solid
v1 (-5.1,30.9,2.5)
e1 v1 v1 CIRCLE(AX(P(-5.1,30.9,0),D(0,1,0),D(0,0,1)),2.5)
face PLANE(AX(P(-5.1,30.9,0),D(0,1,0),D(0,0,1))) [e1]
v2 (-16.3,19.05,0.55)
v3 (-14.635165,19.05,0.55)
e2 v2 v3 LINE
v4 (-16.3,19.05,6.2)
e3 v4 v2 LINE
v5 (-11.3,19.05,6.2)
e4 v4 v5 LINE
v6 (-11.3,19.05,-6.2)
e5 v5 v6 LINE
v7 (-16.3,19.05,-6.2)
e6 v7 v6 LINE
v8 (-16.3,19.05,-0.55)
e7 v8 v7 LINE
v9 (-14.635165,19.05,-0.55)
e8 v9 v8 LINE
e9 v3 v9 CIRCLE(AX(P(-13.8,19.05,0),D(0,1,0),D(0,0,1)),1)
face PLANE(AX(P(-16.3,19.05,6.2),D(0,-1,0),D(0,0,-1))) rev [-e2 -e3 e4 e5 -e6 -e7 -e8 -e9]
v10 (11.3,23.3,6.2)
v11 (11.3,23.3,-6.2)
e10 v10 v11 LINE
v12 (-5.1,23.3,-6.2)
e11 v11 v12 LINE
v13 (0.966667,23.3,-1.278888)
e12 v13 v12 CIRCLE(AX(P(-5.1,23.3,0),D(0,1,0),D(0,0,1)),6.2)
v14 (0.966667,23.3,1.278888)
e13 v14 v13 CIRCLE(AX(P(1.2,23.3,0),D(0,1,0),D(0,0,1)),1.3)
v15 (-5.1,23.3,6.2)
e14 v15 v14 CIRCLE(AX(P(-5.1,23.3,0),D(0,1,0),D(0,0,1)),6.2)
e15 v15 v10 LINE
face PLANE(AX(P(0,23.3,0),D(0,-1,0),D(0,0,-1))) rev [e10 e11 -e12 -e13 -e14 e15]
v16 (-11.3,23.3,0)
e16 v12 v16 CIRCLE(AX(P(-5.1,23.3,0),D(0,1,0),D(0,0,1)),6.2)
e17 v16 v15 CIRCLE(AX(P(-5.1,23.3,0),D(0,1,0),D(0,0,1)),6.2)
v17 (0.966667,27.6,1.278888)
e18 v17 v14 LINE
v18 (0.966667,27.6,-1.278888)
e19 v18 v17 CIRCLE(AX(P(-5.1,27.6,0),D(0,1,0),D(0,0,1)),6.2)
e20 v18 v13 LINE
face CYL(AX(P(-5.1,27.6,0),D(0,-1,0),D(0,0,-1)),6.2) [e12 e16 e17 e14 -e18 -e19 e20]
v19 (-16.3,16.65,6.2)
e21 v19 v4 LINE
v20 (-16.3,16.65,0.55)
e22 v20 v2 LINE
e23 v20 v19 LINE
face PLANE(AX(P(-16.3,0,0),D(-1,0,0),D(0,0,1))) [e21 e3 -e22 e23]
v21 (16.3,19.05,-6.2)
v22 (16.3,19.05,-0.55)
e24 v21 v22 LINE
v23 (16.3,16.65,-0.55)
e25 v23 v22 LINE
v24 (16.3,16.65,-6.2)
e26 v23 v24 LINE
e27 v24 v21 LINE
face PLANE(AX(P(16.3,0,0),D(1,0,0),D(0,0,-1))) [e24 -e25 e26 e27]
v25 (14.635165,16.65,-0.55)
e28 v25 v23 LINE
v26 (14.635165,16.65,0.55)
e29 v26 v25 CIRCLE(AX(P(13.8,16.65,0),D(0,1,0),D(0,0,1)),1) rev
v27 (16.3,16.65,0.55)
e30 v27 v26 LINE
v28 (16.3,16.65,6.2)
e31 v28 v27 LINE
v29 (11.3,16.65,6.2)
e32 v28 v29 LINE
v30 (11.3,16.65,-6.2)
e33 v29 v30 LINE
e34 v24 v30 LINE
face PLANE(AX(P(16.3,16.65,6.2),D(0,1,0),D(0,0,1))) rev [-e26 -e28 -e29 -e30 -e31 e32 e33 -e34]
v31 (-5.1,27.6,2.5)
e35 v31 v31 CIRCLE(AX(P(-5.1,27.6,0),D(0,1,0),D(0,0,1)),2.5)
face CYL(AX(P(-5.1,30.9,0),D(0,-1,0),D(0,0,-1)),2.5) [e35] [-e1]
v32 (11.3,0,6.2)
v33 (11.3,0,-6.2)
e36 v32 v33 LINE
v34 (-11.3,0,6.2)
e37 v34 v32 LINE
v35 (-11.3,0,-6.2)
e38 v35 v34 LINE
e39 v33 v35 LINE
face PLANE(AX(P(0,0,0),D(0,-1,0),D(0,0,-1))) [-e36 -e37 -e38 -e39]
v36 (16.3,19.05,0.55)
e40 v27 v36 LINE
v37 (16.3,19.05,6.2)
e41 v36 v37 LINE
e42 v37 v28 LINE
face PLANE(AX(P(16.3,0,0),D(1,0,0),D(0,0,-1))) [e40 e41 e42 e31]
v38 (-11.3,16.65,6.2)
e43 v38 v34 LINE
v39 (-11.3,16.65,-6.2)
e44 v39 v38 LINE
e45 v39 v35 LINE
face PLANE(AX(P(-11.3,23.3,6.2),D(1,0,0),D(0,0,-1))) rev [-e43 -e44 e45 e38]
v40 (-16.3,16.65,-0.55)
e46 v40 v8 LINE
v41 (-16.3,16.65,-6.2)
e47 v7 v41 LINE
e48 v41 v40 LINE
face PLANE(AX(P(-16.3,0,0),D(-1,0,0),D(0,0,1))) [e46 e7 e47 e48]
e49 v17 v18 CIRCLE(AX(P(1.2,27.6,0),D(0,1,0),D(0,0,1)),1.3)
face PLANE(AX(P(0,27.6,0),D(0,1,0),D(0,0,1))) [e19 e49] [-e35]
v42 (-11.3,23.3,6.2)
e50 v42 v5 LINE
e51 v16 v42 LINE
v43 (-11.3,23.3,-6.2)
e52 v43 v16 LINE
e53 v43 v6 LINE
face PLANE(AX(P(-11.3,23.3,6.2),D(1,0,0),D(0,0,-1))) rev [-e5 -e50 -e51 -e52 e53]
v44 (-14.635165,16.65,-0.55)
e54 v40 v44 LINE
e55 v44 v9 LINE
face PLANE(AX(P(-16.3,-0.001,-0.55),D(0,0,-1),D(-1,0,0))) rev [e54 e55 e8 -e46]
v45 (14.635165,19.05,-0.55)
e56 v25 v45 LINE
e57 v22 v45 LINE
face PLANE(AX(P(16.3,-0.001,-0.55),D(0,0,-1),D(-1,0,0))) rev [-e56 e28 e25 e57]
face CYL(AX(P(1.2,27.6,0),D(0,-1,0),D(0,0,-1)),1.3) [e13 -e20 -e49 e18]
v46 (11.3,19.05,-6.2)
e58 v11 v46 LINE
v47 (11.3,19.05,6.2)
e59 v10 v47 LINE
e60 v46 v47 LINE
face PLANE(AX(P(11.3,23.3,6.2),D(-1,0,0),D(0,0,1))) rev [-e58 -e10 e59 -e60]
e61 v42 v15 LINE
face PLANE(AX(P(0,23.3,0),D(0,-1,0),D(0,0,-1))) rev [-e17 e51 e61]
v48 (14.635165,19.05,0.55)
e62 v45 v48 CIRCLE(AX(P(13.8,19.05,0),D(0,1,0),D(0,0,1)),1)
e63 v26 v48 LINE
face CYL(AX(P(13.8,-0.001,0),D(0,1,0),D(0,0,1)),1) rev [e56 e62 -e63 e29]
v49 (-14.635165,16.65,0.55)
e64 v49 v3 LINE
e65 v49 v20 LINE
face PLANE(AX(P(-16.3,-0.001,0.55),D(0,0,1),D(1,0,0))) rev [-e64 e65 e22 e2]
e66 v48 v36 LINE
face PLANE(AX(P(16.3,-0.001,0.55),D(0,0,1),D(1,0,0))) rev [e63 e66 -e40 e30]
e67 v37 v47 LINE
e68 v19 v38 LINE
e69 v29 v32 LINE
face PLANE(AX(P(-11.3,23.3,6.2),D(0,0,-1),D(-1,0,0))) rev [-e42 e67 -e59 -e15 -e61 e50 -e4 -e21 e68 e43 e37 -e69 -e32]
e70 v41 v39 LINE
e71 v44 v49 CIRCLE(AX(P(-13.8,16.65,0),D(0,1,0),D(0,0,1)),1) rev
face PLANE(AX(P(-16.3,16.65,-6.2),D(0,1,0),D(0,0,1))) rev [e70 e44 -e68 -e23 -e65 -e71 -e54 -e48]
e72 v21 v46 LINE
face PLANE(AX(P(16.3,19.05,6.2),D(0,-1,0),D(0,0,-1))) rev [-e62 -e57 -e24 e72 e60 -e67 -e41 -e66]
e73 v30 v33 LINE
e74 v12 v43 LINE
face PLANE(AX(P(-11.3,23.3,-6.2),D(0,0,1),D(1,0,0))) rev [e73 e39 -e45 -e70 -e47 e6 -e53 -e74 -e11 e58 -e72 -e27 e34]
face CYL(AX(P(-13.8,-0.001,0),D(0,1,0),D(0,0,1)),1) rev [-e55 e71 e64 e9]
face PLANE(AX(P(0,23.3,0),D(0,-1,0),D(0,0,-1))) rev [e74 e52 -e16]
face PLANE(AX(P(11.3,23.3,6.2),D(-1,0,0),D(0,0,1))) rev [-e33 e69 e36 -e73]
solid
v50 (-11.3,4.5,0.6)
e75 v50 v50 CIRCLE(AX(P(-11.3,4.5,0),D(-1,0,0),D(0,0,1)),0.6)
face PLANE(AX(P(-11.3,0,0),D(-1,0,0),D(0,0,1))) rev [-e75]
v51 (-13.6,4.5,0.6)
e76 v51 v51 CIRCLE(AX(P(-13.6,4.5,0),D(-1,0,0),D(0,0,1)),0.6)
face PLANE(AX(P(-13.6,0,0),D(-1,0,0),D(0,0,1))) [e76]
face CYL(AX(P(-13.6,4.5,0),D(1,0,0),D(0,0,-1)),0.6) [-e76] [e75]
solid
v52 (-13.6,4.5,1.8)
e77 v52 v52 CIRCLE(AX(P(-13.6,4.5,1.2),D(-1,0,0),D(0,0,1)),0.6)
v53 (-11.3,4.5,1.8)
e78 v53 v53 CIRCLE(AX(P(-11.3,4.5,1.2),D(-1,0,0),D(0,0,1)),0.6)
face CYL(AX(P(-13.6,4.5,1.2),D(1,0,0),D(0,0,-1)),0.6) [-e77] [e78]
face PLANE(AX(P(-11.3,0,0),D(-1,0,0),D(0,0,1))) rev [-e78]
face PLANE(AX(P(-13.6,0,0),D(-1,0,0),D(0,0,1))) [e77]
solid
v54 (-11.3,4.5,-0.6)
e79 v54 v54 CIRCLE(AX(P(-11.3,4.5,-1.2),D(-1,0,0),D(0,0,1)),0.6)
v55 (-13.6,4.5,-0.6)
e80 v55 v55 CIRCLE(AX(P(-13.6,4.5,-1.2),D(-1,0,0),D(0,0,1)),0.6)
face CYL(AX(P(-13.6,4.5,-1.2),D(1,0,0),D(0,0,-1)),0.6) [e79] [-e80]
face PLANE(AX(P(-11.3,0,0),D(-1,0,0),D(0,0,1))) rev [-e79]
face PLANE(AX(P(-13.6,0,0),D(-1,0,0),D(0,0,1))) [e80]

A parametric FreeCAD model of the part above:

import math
import FreeCAD as App
import Part
import Sketcher
Q = App.Units.Quantity

doc = App.newDocument("Part")
body = doc.addObject("PartDesign::Body", "Body")

# Sketch on XZ plane
sketch1 = body.newObject("Sketcher::SketchObject", "Sketch")
sketch1.AttachmentSupport = (doc.getObject("XZ_Plane"), [""])
sketch1.MapMode = "FlatFace"
sketch1.addGeometry([
    Part.LineSegment(App.Vector(-11.3, -6.2, 0), App.Vector(-11.3, 6.2, 0)),
    Part.LineSegment(App.Vector(-11.3, 6.2, 0), App.Vector(11.3, 6.2, 0)),
    Part.LineSegment(App.Vector(11.3, 6.2, 0), App.Vector(11.3, -6.2, 0)),
    Part.LineSegment(App.Vector(11.3, -6.2, 0), App.Vector(-11.3, -6.2, 0)),
], False)
sketch1.addConstraint([
    Sketcher.Constraint("Coincident", 0, 2, 1, 1),
    Sketcher.Constraint("Coincident", 1, 2, 2, 1),
    Sketcher.Constraint("Coincident", 2, 2, 3, 1),
    Sketcher.Constraint("Coincident", 3, 2, 0, 1),
    Sketcher.Constraint("Vertical", 0),
    Sketcher.Constraint("Horizontal", 1),
    Sketcher.Constraint("Vertical", 2),
    Sketcher.Constraint("Horizontal", 3),
    Sketcher.Constraint("Symmetric", 0, 2, 2, 2, -1, 1),
    Sketcher.Constraint("DistanceX", 1, 1, 1, 2, Q("22.6 mm")),
    Sketcher.Constraint("DistanceY", 0, 1, 0, 2, Q("12.4 mm")),
])
pad1 = body.newObject("PartDesign::Pad", "Pad")
pad1.Profile = sketch1
pad1.Length = 23.3
pad1.Reversed = True

# Sketch on YZ plane
sketch2 = body.newObject("Sketcher::SketchObject", "Sketch001")
sketch2.AttachmentSupport = (doc.getObject("YZ_Plane"), [""])
sketch2.MapMode = "FlatFace"
sketch2.AttachmentOffset = App.Placement(App.Vector(0, 0, 11.3), App.Rotation())
sketch2.addGeometry([
    Part.LineSegment(App.Vector(19.05, 6.2, 0), App.Vector(16.65, 6.2, 0)),
    Part.LineSegment(App.Vector(16.65, 6.2, 0), App.Vector(16.65, -6.2, 0)),
    Part.LineSegment(App.Vector(16.65, -6.2, 0), App.Vector(19.05, -6.2, 0)),
    Part.LineSegment(App.Vector(19.05, -6.2, 0), App.Vector(19.05, 6.2, 0)),
], False)
sketch2.addConstraint([
    Sketcher.Constraint("Coincident", 0, 2, 1, 1),
    Sketcher.Constraint("Coincident", 1, 2, 2, 1),
    Sketcher.Constraint("Coincident", 2, 2, 3, 1),
    Sketcher.Constraint("Coincident", 3, 2, 0, 1),
    Sketcher.Constraint("Horizontal", 0),
    Sketcher.Constraint("Vertical", 1),
    Sketcher.Constraint("Horizontal", 2),
    Sketcher.Constraint("Vertical", 3),
    Sketcher.Constraint("DistanceX", 0, 2, 0, 1, Q("2.4 mm")),
    Sketcher.Constraint("DistanceY", 1, 2, 1, 1, Q("12.4 mm")),
    Sketcher.Constraint("DistanceY", -1, 1, 0, 2, Q("6.2 mm")),
    Sketcher.Constraint("DistanceX", -1, 1, 0, 2, Q("16.65 mm")),
])
pad2 = body.newObject("PartDesign::Pad", "Pad001")
pad2.Profile = sketch2
pad2.Length = 5

# Sketch on YZ plane
sketch3 = body.newObject("Sketcher::SketchObject", "Sketch002")
sketch3.AttachmentSupport = (doc.getObject("YZ_Plane"), [""])
sketch3.MapMode = "FlatFace"
sketch3.AttachmentOffset = App.Placement(App.Vector(0, 0, -11.3), App.Rotation())
sketch3.addGeometry([
    Part.LineSegment(App.Vector(19.05, -6.2, 0), App.Vector(16.65, -6.2, 0)),
    Part.LineSegment(App.Vector(16.65, -6.2, 0), App.Vector(16.65, 6.2, 0)),
    Part.LineSegment(App.Vector(16.65, 6.2, 0), App.Vector(19.05, 6.2, 0)),
    Part.LineSegment(App.Vector(19.05, 6.2, 0), App.Vector(19.05, -6.2, 0)),
], False)
sketch3.addConstraint([
    Sketcher.Constraint("Coincident", 0, 2, 1, 1),
    Sketcher.Constraint("Coincident", 1, 2, 2, 1),
    Sketcher.Constraint("Coincident", 2, 2, 3, 1),
    Sketcher.Constraint("Coincident", 3, 2, 0, 1),
    Sketcher.Constraint("Horizontal", 0),
    Sketcher.Constraint("Vertical", 1),
    Sketcher.Constraint("Horizontal", 2),
    Sketcher.Constraint("Vertical", 3),
    Sketcher.Constraint("DistanceX", 0, 2, 0, 1, Q("2.4 mm")),
    Sketcher.Constraint("DistanceY", 1, 1, 1, 2, Q("12.4 mm")),
    Sketcher.Constraint("DistanceY", 0, 2, -1, 1, Q("6.2 mm")),
    Sketcher.Constraint("DistanceX", -1, 1, 0, 2, Q("16.65 mm")),
])
pad3 = body.newObject("PartDesign::Pad", "Pad002")
pad3.Profile = sketch3
pad3.Length = 5
pad3.Reversed = True

# Sketch on XZ plane
sketch4 = body.newObject("Sketcher::SketchObject", "Sketch003")
sketch4.AttachmentSupport = (doc.getObject("XZ_Plane"), [""])
sketch4.MapMode = "FlatFace"
sketch4.AttachmentOffset = App.Placement(App.Vector(0, 0, -19.05), App.Rotation())
sketch4.addGeometry([
    Part.LineSegment(App.Vector(-14.635165, -0.55, 0), App.Vector(-16.3, -0.55, 0)),
    Part.LineSegment(App.Vector(-16.3, -0.55, 0), App.Vector(-16.3, 0.55, 0)),
    Part.LineSegment(App.Vector(-16.3, 0.55, 0), App.Vector(-14.635165, 0.55, 0)),
    Part.ArcOfCircle(Part.Circle(App.Vector(-13.8, 0, 0), App.Vector(0, 0, 1), 1), math.radians(-146.632987), math.radians(146.632987)),
], False)
sketch4.addConstraint([
    Sketcher.Constraint("Coincident", 0, 2, 1, 1),
    Sketcher.Constraint("Coincident", 1, 2, 2, 1),
    Sketcher.Constraint("Coincident", 2, 2, 3, 2),
    Sketcher.Constraint("Coincident", 3, 1, 0, 1),
    Sketcher.Constraint("Horizontal", 0),
    Sketcher.Constraint("Vertical", 1),
    Sketcher.Constraint("Horizontal", 2),
    Sketcher.Constraint("Symmetric", 2, 2, 3, 1, -1),
    Sketcher.Constraint("Radius", 3, Q("1 mm")),
    Sketcher.Constraint("DistanceY", 1, 1, 1, 2, Q("1.1 mm")),
    Sketcher.Constraint("DistanceX", 3, 3, -1, 1, Q("13.8 mm")),
    Sketcher.Constraint("DistanceX", 0, 2, -1, 1, Q("16.3 mm")),
])
pocket1 = body.newObject("PartDesign::Pocket", "Pocket")
pocket1.Profile = sketch4
pocket1.Type = "UpToFirst"
pocket1.Reversed = True

# Sketch on XZ plane
sketch5 = body.newObject("Sketcher::SketchObject", "Sketch004")
sketch5.AttachmentSupport = (doc.getObject("XZ_Plane"), [""])
sketch5.MapMode = "FlatFace"
sketch5.AttachmentOffset = App.Placement(App.Vector(0, 0, -19.05), App.Rotation())
sketch5.addGeometry([
    Part.LineSegment(App.Vector(14.635165, 0.55, 0), App.Vector(16.3, 0.55, 0)),
    Part.LineSegment(App.Vector(16.3, 0.55, 0), App.Vector(16.3, -0.55, 0)),
    Part.LineSegment(App.Vector(16.3, -0.55, 0), App.Vector(14.635165, -0.55, 0)),
    Part.ArcOfCircle(Part.Circle(App.Vector(13.8, 0, 0), App.Vector(0, 0, 1), 1), math.radians(33.367013), math.radians(326.632987)),
], False)
sketch5.addConstraint([
    Sketcher.Constraint("Coincident", 0, 2, 1, 1),
    Sketcher.Constraint("Coincident", 1, 2, 2, 1),
    Sketcher.Constraint("Coincident", 2, 2, 3, 2),
    Sketcher.Constraint("Coincident", 3, 1, 0, 1),
    Sketcher.Constraint("Horizontal", 0),
    Sketcher.Constraint("Vertical", 1),
    Sketcher.Constraint("Horizontal", 2),
    Sketcher.Constraint("Symmetric", 2, 2, 3, 1, -1),
    Sketcher.Constraint("Radius", 3, Q("1 mm")),
    Sketcher.Constraint("DistanceY", 1, 2, 1, 1, Q("1.1 mm")),
    Sketcher.Constraint("DistanceX", -1, 1, 3, 3, Q("13.8 mm")),
    Sketcher.Constraint("DistanceX", -1, 1, 0, 2, Q("16.3 mm")),
])
pocket2 = body.newObject("PartDesign::Pocket", "Pocket001")
pocket2.Profile = sketch5
pocket2.Type = "UpToFirst"
pocket2.Reversed = True

# Sketch on XZ plane
sketch6 = body.newObject("Sketcher::SketchObject", "Sketch005")
sketch6.AttachmentSupport = (doc.getObject("XZ_Plane"), [""])
sketch6.MapMode = "FlatFace"
sketch6.AttachmentOffset = App.Placement(App.Vector(0, 0, -23.3), App.Rotation())
sketch6.addGeometry([
    Part.ArcOfCircle(Part.Circle(App.Vector(1.2, 0, 0), App.Vector(0, 0, 1), 1.3), math.radians(-100.339891), math.radians(100.339891)),
    Part.ArcOfCircle(Part.Circle(App.Vector(-5.1, 0, 0), App.Vector(0, 0, 1), 6.2), math.radians(11.90399), math.radians(348.09601)),
], False)
sketch6.addConstraint([
    Sketcher.Constraint("Coincident", 0, 1, 1, 2),
    Sketcher.Constraint("Coincident", 1, 1, 0, 2),
    Sketcher.Constraint("Symmetric", 0, 1, 1, 1, -1),
    Sketcher.Constraint("Radius", 0, Q("1.3 mm")),
    Sketcher.Constraint("Radius", 1, Q("6.2 mm")),
    Sketcher.Constraint("DistanceX", -1, 1, 0, 3, Q("1.2 mm")),
    Sketcher.Constraint("DistanceX", 1, 3, -1, 1, Q("5.1 mm")),
])
pad4 = body.newObject("PartDesign::Pad", "Pad003")
pad4.Profile = sketch6
pad4.Length = 4.3
pad4.Reversed = True

# Sketch on XZ plane
sketch7 = body.newObject("Sketcher::SketchObject", "Sketch006")
sketch7.AttachmentSupport = (doc.getObject("XZ_Plane"), [""])
sketch7.MapMode = "FlatFace"
sketch7.AttachmentOffset = App.Placement(App.Vector(0, 0, -27.6), App.Rotation())
sketch7.addGeometry(Part.Circle(App.Vector(-5.1, 0, 0), App.Vector(0, 0, 1), 2.5), False)
sketch7.addConstraint([
    Sketcher.Constraint("PointOnObject", 0, 3, -1),
    Sketcher.Constraint("Diameter", 0, Q("5 mm")),
    Sketcher.Constraint("DistanceX", 0, 3, -1, 1, Q("5.1 mm")),
])
pad5 = body.newObject("PartDesign::Pad", "Pad004")
pad5.Profile = sketch7
pad5.Length = 3.3
pad5.Reversed = True
body2 = doc.addObject("PartDesign::Body", "Body001")

# Sketch on YZ plane
sketch8 = body2.newObject("Sketcher::SketchObject", "Sketch007")
sketch8.AttachmentSupport = (doc.getObject("YZ_Plane001"), [""])
sketch8.MapMode = "FlatFace"
sketch8.AttachmentOffset = App.Placement(App.Vector(0, 0, -11.3), App.Rotation())
sketch8.addGeometry(Part.Circle(App.Vector(4.5, 0, 0), App.Vector(0, 0, 1), 0.6), False)
sketch8.addConstraint([
    Sketcher.Constraint("PointOnObject", 0, 3, -1),
    Sketcher.Constraint("Diameter", 0, Q("1.2 mm")),
    Sketcher.Constraint("DistanceX", -1, 1, 0, 3, Q("4.5 mm")),
])
pad6 = body2.newObject("PartDesign::Pad", "Pad005")
pad6.Profile = sketch8
pad6.Length = 2.3
pad6.Reversed = True
body3 = doc.addObject("PartDesign::Body", "Body002")

# Sketch on YZ plane
sketch9 = body3.newObject("Sketcher::SketchObject", "Sketch008")
sketch9.AttachmentSupport = (doc.getObject("YZ_Plane002"), [""])
sketch9.MapMode = "FlatFace"
sketch9.AttachmentOffset = App.Placement(App.Vector(0, 0, -11.3), App.Rotation())
sketch9.addGeometry(Part.Circle(App.Vector(4.5, -1.2, 0), App.Vector(0, 0, 1), 0.6), False)
sketch9.addConstraint([
    Sketcher.Constraint("Diameter", 0, Q("1.2 mm")),
    Sketcher.Constraint("DistanceX", -1, 1, 0, 3, Q("4.5 mm")),
    Sketcher.Constraint("DistanceY", 0, 3, -1, 1, Q("1.2 mm")),
])
pad7 = body3.newObject("PartDesign::Pad", "Pad006")
pad7.Profile = sketch9
pad7.Length = 2.3
pad7.Reversed = True
body4 = doc.addObject("PartDesign::Body", "Body003")

# Sketch on YZ plane
sketch10 = body4.newObject("Sketcher::SketchObject", "Sketch009")
sketch10.AttachmentSupport = (doc.getObject("YZ_Plane003"), [""])
sketch10.MapMode = "FlatFace"
sketch10.AttachmentOffset = App.Placement(App.Vector(0, 0, -11.3), App.Rotation())
sketch10.addGeometry(Part.Circle(App.Vector(4.5, 1.2, 0), App.Vector(0, 0, 1), 0.6), False)
sketch10.addConstraint([
    Sketcher.Constraint("Diameter", 0, Q("1.2 mm")),
    Sketcher.Constraint("DistanceX", -1, 1, 0, 3, Q("4.5 mm")),
    Sketcher.Constraint("DistanceY", -1, 1, 0, 3, Q("1.2 mm")),
])
pad8 = body4.newObject("PartDesign::Pad", "Pad007")
pad8.Profile = sketch10
pad8.Length = 2.3
pad8.Reversed = True

doc.recompute()
